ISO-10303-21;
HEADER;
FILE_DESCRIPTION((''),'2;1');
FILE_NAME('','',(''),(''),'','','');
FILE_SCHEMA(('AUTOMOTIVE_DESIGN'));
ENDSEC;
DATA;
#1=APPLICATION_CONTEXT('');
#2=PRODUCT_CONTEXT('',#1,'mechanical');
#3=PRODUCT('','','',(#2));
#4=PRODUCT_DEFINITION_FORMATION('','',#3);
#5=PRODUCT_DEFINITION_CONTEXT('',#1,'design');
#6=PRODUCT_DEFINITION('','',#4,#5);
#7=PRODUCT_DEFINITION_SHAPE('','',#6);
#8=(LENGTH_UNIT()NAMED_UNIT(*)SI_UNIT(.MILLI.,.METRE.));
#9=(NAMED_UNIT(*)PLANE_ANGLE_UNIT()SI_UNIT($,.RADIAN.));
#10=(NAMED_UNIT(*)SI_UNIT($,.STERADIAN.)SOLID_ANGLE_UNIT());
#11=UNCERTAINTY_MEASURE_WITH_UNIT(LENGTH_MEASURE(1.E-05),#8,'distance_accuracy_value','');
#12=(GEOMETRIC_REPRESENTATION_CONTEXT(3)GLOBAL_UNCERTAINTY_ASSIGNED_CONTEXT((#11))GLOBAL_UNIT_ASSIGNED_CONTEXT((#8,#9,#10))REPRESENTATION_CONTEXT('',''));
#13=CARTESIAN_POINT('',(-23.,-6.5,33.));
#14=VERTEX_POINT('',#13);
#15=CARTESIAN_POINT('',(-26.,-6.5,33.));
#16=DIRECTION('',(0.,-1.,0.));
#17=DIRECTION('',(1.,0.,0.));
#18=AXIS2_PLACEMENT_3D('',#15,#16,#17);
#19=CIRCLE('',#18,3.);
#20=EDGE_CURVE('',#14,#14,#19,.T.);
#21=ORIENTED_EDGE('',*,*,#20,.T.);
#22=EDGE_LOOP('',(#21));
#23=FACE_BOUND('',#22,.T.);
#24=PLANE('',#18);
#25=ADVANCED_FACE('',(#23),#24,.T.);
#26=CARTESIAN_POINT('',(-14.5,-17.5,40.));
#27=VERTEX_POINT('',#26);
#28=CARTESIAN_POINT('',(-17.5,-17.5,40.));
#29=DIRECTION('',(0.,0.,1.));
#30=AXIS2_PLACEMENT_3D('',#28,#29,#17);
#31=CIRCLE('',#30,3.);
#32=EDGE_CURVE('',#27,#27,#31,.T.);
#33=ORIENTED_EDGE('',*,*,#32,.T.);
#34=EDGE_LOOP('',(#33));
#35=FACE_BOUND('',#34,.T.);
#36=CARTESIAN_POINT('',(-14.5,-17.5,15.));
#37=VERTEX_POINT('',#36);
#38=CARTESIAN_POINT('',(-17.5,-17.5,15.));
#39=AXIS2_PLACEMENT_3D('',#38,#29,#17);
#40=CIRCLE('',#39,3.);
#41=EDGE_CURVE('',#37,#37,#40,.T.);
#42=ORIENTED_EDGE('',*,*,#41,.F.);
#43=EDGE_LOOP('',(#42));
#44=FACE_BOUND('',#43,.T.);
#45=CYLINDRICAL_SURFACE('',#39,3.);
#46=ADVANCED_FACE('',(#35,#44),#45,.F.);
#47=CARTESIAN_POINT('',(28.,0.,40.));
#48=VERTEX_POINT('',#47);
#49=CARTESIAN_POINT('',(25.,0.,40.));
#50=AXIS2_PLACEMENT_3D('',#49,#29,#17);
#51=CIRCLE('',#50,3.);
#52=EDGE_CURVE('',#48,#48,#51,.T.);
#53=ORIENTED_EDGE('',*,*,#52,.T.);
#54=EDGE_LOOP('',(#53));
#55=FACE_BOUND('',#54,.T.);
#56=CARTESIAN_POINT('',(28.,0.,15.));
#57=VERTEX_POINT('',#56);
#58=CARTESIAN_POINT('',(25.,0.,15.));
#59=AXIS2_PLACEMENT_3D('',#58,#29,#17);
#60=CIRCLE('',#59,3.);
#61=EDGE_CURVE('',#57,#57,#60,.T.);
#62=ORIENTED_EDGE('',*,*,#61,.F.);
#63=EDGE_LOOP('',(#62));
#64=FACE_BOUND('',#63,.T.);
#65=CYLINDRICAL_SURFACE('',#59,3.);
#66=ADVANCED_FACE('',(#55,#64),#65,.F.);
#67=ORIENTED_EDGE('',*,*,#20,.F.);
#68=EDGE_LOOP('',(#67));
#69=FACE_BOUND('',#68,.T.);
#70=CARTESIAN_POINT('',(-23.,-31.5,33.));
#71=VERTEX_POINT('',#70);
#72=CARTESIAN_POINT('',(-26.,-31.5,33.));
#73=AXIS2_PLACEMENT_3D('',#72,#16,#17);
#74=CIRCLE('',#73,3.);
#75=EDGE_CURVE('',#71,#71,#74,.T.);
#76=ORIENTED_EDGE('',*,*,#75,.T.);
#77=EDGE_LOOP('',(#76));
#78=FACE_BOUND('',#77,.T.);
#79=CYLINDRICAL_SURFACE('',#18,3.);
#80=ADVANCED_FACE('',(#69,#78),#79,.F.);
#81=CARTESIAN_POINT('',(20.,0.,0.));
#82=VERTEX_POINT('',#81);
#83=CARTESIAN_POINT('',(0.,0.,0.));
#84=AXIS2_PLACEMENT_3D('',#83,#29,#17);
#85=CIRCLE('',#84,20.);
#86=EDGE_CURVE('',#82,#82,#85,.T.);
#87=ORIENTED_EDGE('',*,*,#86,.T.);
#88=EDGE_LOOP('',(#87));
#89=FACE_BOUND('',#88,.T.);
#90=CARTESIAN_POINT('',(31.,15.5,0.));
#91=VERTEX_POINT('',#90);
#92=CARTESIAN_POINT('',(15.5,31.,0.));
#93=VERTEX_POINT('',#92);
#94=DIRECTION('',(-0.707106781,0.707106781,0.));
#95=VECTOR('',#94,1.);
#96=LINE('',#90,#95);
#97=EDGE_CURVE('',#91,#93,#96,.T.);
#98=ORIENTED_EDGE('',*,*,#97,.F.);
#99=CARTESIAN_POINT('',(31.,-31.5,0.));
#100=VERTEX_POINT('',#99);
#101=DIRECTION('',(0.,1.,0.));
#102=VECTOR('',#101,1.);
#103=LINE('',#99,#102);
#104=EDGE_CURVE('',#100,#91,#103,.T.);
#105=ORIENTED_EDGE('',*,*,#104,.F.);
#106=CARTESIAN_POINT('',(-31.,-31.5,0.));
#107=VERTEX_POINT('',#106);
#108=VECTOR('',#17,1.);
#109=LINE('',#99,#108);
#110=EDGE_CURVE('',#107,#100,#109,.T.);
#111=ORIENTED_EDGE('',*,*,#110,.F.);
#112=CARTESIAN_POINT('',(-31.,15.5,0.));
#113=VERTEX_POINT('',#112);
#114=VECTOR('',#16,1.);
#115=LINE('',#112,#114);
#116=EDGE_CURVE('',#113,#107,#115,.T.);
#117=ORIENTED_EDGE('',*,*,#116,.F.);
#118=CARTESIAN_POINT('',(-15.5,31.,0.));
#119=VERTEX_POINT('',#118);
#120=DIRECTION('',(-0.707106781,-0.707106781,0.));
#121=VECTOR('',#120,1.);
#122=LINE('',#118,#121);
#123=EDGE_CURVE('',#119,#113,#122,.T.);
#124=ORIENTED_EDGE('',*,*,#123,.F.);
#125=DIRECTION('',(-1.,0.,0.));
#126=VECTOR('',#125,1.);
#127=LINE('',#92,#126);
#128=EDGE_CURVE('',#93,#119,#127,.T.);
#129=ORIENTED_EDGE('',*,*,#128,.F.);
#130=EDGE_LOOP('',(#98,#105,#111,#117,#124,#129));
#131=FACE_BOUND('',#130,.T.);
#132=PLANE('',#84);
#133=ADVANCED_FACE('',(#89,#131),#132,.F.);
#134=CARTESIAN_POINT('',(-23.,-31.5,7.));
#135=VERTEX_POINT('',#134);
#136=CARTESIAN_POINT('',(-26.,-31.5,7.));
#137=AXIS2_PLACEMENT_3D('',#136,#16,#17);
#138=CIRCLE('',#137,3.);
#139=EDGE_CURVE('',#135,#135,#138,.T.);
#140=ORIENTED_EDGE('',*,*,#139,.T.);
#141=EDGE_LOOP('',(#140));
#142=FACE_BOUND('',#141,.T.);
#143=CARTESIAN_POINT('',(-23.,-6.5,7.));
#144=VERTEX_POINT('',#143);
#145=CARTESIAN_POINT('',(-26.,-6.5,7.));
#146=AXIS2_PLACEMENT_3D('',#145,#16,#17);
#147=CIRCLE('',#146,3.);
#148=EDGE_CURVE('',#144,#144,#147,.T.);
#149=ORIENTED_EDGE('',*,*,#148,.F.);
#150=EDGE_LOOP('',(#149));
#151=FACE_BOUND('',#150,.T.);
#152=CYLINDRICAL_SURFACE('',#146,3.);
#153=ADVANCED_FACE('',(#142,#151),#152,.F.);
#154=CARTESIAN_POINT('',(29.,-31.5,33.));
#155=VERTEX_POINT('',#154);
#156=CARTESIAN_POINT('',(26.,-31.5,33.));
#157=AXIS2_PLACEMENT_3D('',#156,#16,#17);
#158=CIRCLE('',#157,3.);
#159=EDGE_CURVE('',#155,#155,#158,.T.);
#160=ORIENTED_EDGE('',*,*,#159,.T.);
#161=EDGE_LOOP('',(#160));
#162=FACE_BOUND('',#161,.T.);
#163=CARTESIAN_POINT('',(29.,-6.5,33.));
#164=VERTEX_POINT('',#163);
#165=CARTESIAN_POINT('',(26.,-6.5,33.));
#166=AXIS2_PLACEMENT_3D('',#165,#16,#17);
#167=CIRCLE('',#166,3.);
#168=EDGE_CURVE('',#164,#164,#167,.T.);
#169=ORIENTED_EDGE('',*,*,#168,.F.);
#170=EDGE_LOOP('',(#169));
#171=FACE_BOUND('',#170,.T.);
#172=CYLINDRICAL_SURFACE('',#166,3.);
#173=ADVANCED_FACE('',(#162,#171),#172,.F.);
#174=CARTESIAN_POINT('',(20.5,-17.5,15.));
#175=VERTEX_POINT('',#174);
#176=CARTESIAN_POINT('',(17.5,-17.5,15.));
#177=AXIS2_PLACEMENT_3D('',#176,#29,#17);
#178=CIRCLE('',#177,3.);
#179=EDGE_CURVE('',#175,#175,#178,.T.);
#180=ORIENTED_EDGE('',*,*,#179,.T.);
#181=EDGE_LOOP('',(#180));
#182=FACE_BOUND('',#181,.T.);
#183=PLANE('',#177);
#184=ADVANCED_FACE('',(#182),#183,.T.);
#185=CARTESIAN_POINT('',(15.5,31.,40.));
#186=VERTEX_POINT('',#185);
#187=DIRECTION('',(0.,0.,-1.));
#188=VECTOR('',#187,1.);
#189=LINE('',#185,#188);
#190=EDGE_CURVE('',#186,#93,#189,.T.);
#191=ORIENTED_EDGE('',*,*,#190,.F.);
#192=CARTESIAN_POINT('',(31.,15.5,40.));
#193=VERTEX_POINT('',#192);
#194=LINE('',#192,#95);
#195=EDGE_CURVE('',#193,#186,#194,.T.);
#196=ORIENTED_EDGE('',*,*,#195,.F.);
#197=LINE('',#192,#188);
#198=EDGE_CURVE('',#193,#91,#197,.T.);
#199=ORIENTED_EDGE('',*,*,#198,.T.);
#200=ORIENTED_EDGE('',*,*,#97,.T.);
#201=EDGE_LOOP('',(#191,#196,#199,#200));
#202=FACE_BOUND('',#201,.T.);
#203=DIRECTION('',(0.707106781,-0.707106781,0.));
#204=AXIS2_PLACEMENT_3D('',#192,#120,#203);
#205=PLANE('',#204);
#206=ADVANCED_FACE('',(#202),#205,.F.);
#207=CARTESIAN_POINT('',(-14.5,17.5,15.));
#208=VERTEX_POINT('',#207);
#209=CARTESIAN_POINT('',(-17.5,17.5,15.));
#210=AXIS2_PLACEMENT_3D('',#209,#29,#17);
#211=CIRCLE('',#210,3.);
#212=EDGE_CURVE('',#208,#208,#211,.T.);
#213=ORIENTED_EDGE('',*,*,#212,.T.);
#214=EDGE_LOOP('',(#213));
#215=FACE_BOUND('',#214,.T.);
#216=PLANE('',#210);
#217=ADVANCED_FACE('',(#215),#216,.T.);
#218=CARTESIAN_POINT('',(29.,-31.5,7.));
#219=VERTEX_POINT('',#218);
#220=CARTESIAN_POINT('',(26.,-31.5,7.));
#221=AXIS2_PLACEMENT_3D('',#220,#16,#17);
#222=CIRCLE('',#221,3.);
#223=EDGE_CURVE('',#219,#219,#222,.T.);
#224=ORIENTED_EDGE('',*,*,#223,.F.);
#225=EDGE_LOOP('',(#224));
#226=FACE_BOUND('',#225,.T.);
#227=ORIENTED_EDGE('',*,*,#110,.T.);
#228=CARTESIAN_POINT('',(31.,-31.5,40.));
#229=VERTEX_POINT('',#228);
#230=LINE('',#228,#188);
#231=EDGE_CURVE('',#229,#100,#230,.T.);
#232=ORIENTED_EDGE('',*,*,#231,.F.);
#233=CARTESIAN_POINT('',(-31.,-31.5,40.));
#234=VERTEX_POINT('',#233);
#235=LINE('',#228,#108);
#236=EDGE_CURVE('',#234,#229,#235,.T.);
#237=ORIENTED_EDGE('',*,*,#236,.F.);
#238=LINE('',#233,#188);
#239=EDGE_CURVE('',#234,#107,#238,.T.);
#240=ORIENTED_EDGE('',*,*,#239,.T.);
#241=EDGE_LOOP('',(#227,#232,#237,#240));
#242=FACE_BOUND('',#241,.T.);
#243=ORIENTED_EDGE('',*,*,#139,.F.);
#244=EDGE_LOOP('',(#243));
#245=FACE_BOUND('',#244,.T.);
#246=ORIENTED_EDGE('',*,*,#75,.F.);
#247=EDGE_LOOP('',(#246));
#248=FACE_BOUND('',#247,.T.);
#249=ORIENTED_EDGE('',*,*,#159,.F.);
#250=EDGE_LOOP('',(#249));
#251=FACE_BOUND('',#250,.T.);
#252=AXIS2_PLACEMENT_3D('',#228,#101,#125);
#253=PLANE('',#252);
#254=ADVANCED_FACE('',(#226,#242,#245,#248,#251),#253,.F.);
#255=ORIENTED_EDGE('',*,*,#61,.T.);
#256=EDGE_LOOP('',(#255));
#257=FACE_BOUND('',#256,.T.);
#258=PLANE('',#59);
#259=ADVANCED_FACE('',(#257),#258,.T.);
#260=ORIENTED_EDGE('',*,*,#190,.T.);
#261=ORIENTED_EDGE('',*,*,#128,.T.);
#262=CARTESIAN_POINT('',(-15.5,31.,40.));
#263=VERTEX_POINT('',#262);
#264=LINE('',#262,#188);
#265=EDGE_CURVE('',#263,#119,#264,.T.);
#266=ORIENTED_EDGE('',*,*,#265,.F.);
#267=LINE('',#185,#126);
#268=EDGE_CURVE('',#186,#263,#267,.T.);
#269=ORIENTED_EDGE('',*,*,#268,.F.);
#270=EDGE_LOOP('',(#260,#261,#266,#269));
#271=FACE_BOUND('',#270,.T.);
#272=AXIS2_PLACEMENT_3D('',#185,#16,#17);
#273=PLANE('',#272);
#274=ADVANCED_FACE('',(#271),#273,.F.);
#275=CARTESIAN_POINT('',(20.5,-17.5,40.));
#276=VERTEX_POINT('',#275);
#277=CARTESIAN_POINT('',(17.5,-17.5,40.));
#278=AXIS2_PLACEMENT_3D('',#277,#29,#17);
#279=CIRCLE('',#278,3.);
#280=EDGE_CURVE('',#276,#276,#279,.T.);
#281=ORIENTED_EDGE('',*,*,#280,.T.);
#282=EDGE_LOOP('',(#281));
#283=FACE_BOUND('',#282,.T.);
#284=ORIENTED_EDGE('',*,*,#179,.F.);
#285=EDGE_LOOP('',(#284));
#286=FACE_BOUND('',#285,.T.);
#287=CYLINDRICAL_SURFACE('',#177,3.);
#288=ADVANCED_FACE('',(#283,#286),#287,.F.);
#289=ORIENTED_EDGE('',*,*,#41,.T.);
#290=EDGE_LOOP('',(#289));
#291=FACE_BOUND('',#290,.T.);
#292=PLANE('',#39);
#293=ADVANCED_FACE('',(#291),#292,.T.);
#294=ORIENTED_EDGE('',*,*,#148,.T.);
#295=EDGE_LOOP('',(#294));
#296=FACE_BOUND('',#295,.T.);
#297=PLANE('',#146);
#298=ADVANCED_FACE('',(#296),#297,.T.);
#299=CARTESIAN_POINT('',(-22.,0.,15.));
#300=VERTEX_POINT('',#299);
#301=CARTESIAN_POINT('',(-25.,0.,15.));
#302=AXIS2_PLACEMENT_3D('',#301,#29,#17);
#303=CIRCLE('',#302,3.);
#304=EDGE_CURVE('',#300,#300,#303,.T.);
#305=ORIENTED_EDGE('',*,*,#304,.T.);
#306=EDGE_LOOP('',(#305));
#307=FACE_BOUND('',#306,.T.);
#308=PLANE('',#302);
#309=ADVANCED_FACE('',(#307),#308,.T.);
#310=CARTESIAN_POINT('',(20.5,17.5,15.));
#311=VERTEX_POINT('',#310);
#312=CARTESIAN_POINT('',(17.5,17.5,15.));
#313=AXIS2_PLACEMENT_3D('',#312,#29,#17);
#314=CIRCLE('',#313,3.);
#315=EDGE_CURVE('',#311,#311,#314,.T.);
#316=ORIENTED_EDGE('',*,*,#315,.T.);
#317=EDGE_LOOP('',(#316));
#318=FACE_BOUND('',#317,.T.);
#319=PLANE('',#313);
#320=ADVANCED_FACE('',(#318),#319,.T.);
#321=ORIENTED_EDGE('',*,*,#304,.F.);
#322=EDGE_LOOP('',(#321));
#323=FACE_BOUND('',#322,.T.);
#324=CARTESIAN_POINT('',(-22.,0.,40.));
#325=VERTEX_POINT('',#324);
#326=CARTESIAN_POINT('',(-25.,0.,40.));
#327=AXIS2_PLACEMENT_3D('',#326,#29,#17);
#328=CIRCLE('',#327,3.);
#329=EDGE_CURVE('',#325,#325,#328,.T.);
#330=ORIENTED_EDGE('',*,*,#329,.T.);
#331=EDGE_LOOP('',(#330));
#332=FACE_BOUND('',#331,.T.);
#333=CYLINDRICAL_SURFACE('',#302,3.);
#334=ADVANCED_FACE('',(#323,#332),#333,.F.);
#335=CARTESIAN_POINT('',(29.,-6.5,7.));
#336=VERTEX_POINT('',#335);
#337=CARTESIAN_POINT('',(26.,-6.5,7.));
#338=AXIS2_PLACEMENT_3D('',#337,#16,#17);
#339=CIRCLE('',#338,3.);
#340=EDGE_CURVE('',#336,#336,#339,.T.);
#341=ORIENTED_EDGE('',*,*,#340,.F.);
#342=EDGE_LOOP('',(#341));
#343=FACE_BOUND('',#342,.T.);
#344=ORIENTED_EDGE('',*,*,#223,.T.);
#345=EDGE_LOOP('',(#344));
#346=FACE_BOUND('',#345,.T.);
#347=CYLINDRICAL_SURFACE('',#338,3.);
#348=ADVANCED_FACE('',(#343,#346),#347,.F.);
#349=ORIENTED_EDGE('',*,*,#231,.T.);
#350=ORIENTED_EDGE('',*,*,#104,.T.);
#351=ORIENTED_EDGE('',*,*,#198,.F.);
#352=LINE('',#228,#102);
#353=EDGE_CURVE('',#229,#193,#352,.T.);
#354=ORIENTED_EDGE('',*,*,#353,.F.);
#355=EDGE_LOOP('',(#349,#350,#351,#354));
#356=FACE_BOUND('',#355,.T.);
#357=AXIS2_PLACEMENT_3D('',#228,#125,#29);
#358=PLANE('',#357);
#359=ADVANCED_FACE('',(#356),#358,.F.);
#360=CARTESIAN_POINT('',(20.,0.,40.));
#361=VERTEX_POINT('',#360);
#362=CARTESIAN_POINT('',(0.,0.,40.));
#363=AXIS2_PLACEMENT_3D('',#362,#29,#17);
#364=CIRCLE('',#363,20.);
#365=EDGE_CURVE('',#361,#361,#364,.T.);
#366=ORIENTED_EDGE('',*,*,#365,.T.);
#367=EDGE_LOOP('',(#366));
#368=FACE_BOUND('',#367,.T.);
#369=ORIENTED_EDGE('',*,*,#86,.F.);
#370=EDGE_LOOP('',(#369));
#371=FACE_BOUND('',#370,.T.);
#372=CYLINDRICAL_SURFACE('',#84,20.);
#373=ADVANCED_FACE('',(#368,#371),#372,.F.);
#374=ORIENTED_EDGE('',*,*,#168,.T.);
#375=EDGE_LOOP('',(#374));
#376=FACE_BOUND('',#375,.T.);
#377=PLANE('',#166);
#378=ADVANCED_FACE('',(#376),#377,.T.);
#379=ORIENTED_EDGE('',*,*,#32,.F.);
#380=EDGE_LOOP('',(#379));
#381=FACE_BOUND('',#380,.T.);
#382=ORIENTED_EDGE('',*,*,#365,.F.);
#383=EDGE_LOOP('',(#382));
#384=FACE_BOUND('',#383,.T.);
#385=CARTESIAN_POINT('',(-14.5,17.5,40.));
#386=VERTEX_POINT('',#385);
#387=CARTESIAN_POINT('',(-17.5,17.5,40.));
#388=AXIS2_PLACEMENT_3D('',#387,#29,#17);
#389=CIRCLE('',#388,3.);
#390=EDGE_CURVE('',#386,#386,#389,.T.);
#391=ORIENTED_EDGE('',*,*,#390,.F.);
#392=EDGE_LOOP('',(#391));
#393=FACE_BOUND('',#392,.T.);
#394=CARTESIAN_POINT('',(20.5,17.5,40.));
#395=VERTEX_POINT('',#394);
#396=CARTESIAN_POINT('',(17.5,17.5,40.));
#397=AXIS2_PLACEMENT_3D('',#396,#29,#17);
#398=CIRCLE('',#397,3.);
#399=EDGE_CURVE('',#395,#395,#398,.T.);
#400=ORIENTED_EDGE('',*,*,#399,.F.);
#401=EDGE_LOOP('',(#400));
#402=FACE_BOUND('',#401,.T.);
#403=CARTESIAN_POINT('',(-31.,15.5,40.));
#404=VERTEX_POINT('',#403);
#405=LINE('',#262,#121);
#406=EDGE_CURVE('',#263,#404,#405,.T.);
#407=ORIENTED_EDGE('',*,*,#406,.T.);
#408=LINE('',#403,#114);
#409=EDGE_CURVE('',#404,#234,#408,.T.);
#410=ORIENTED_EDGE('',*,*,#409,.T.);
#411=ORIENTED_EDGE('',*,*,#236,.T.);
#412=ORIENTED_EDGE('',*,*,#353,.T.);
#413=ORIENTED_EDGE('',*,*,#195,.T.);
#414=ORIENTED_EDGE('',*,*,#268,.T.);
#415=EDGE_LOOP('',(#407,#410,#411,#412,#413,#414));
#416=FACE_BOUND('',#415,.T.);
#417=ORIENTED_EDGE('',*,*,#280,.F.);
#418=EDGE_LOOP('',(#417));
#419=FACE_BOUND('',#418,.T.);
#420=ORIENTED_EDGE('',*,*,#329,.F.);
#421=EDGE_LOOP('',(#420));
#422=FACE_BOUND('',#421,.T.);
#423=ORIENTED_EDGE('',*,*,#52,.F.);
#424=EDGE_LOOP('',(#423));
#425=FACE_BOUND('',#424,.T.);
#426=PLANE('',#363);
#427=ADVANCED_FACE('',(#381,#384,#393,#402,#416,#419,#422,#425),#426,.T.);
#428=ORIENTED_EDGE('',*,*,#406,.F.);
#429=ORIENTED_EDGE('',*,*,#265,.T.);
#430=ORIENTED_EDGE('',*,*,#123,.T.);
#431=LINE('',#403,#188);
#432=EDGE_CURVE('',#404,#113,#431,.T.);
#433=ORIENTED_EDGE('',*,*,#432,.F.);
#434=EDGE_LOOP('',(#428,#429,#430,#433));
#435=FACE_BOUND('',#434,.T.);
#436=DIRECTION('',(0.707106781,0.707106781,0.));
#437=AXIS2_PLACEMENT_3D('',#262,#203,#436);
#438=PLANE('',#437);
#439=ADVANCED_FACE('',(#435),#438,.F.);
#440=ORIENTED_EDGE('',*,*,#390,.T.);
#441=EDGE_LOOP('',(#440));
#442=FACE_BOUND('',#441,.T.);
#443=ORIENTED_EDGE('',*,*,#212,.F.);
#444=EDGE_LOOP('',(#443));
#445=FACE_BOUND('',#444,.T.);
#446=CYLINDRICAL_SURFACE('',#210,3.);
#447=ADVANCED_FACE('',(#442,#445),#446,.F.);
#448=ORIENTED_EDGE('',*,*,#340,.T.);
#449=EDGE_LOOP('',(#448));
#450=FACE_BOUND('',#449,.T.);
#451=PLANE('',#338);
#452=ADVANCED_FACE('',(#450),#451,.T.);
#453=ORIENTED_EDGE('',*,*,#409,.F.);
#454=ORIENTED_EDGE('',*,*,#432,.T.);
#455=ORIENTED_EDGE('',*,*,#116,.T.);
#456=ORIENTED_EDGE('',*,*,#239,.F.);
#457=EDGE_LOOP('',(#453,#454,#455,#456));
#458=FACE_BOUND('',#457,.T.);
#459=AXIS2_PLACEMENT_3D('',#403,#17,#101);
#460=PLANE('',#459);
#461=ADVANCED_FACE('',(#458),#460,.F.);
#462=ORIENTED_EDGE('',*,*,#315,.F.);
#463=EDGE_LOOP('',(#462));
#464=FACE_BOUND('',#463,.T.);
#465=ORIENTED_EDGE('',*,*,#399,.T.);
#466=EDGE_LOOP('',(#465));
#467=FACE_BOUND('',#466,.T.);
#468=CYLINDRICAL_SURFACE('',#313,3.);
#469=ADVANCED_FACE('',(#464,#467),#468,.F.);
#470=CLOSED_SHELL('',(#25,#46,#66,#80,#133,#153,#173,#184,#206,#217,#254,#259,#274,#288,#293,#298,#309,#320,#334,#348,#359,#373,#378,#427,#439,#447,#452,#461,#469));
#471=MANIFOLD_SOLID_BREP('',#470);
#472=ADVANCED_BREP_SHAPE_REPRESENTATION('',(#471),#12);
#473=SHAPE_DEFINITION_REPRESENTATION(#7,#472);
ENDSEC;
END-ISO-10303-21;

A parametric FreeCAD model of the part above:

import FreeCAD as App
import Part
import Sketcher
Q = App.Units.Quantity

doc = App.newDocument("Part")
body = doc.addObject("PartDesign::Body", "Body")

sketch1 = body.newObject("Sketcher::SketchObject", "Sketch")
sketch1.AttachmentSupport = (doc.getObject("XY_Plane"), [""])
sketch1.MapMode = "FlatFace"
sketch1.addGeometry([
    Part.LineSegment(App.Vector(31, -32, 0), App.Vector(31, 16, 0)),
    Part.LineSegment(App.Vector(31, 16, 0), App.Vector(16, 31, 0)),
    Part.LineSegment(App.Vector(16, 31, 0), App.Vector(-16, 31, 0)),
    Part.LineSegment(App.Vector(-16, 31, 0), App.Vector(-31, 16, 0)),
    Part.LineSegment(App.Vector(-31, 16, 0), App.Vector(-31, -32, 0)),
    Part.LineSegment(App.Vector(-31, -32, 0), App.Vector(31, -32, 0)),
], False)
sketch1.addConstraint([
    Sketcher.Constraint("Coincident", 0, 2, 1, 1),
    Sketcher.Constraint("Coincident", 1, 2, 2, 1),
    Sketcher.Constraint("Coincident", 2, 2, 3, 1),
    Sketcher.Constraint("Coincident", 3, 2, 4, 1),
    Sketcher.Constraint("Coincident", 4, 2, 5, 1),
    Sketcher.Constraint("Coincident", 5, 2, 0, 1),
    Sketcher.Constraint("Vertical", 0),
    Sketcher.Constraint("Horizontal", 2),
    Sketcher.Constraint("Vertical", 4),
    Sketcher.Constraint("Horizontal", 5),
    Sketcher.Constraint("Symmetric", 0, 2, 3, 2, -2),
    Sketcher.Constraint("Perpendicular", 1, 3),
    Sketcher.Constraint("Equal", 1, 3),
    Sketcher.Constraint("DistanceX", 2, 2, 2, 1, Q("31 mm")),
    Sketcher.Constraint("DistanceX", 5, 1, 5, 2, Q("62 mm")),
    Sketcher.Constraint("DistanceY", 0, 1, 0, 2, Q("47 mm")),
    Sketcher.Constraint("DistanceY", -1, 1, 1, 2, Q("31 mm")),
])
pad1 = body.newObject("PartDesign::Pad", "Pad")
pad1.Profile = sketch1
pad1.Length = 40

sketch2 = body.newObject("Sketcher::SketchObject", "Sketch001")
sketch2.AttachmentSupport = (doc.getObject("XY_Plane"), [""])
sketch2.MapMode = "FlatFace"
sketch2.AttachmentOffset = App.Placement(App.Vector(0, 0, 40), App.Rotation())
sketch2.addGeometry(Part.Circle(App.Vector(0, 0, 0), App.Vector(0, 0, 1), 20), False)
sketch2.addConstraint([
    Sketcher.Constraint("Coincident", 0, 3, -1, 1),
    Sketcher.Constraint("Diameter", 0, Q("40 mm")),
])
pocket1 = body.newObject("PartDesign::Pocket", "Pocket")
pocket1.Profile = sketch2
pocket1.Length = 40

sketch3 = body.newObject("Sketcher::SketchObject", "Sketch002")
sketch3.AttachmentSupport = (doc.getObject("XY_Plane"), [""])
sketch3.MapMode = "FlatFace"
sketch3.AttachmentOffset = App.Placement(App.Vector(0, 0, 40), App.Rotation())
sketch3.addGeometry([
    Part.Circle(App.Vector(17.5, -17.5, 0), App.Vector(0, 0, 1), 3),
    Part.Circle(App.Vector(25, 0, 0), App.Vector(0, 0, 1), 3),
    Part.Circle(App.Vector(17.5, 17.5, 0), App.Vector(0, 0, 1), 3),
    Part.Circle(App.Vector(-25, 0, 0), App.Vector(0, 0, 1), 3),
    Part.Circle(App.Vector(-17.5, 17.5, 0), App.Vector(0, 0, 1), 3),
    Part.Circle(App.Vector(-17.5, -17.5, 0), App.Vector(0, 0, 1), 3),
], False)
sketch3.addConstraint([
    Sketcher.Constraint("Equal", 0, 1),
    Sketcher.Constraint("Equal", 1, 2),
    Sketcher.Constraint("Equal", 2, 3),
    Sketcher.Constraint("Equal", 3, 4),
    Sketcher.Constraint("Equal", 4, 5),
    Sketcher.Constraint("Symmetric", 1, 3, 3, 3, -1, 1),
    Sketcher.Constraint("Symmetric", 0, 3, 4, 3, -1, 1),
    Sketcher.Constraint("Symmetric", 2, 3, 5, 3, -1, 1),
    Sketcher.Constraint("Symmetric", 2, 3, 4, 3, -2),
    Sketcher.Constraint("PointOnObject", 1, 3, -1),
    Sketcher.Constraint("Diameter", 0, Q("6 mm")),
    Sketcher.Constraint("DistanceX", -1, 1, 1, 3, Q("25 mm")),
    Sketcher.Constraint("DistanceY", 0, 3, 2, 3, Q("35 mm")),
    Sketcher.Constraint("DistanceX", 4, 3, 2, 3, Q("35 mm")),
])
pocket2 = body.newObject("PartDesign::Pocket", "Pocket001")
pocket2.Profile = sketch3
pocket2.Length = 25

sketch4 = body.newObject("Sketcher::SketchObject", "Sketch003")
sketch4.AttachmentSupport = (doc.getObject("XZ_Plane"), [""])
sketch4.MapMode = "FlatFace"
sketch4.AttachmentOffset = App.Placement(App.Vector(0, 0, 31.5), App.Rotation())
sketch4.addGeometry([
    Part.Circle(App.Vector(-26, 33, 0), App.Vector(0, 0, 1), 3),
    Part.Circle(App.Vector(-26, 7, 0), App.Vector(0, 0, 1), 3),
    Part.Circle(App.Vector(26, 33, 0), App.Vector(0, 0, 1), 3),
    Part.Circle(App.Vector(26, 7, 0), App.Vector(0, 0, 1), 3),
], False)
sketch4.addConstraint([
    Sketcher.Constraint("Equal", 0, 1),
    Sketcher.Constraint("Equal", 1, 2),
    Sketcher.Constraint("Equal", 2, 3),
    Sketcher.Constraint("Symmetric", 0, 3, 2, 3, -2),
    Sketcher.Constraint("Symmetric", 1, 3, 3, 3, -2),
    Sketcher.Constraint("Vertical", 0, 3, 1, 3),
    Sketcher.Constraint("Diameter", 0, Q("6 mm")),
    Sketcher.Constraint("DistanceX", 0, 3, -1, 1, Q("26 mm")),
    Sketcher.Constraint("DistanceY", -1, 1, 0, 3, Q("33 mm")),
    Sketcher.Constraint("DistanceY", -1, 1, 1, 3, Q("7 mm")),
])
pocket3 = body.newObject("PartDesign::Pocket", "Pocket002")
pocket3.Profile = sketch4
pocket3.Length = 25

doc.recompute()
